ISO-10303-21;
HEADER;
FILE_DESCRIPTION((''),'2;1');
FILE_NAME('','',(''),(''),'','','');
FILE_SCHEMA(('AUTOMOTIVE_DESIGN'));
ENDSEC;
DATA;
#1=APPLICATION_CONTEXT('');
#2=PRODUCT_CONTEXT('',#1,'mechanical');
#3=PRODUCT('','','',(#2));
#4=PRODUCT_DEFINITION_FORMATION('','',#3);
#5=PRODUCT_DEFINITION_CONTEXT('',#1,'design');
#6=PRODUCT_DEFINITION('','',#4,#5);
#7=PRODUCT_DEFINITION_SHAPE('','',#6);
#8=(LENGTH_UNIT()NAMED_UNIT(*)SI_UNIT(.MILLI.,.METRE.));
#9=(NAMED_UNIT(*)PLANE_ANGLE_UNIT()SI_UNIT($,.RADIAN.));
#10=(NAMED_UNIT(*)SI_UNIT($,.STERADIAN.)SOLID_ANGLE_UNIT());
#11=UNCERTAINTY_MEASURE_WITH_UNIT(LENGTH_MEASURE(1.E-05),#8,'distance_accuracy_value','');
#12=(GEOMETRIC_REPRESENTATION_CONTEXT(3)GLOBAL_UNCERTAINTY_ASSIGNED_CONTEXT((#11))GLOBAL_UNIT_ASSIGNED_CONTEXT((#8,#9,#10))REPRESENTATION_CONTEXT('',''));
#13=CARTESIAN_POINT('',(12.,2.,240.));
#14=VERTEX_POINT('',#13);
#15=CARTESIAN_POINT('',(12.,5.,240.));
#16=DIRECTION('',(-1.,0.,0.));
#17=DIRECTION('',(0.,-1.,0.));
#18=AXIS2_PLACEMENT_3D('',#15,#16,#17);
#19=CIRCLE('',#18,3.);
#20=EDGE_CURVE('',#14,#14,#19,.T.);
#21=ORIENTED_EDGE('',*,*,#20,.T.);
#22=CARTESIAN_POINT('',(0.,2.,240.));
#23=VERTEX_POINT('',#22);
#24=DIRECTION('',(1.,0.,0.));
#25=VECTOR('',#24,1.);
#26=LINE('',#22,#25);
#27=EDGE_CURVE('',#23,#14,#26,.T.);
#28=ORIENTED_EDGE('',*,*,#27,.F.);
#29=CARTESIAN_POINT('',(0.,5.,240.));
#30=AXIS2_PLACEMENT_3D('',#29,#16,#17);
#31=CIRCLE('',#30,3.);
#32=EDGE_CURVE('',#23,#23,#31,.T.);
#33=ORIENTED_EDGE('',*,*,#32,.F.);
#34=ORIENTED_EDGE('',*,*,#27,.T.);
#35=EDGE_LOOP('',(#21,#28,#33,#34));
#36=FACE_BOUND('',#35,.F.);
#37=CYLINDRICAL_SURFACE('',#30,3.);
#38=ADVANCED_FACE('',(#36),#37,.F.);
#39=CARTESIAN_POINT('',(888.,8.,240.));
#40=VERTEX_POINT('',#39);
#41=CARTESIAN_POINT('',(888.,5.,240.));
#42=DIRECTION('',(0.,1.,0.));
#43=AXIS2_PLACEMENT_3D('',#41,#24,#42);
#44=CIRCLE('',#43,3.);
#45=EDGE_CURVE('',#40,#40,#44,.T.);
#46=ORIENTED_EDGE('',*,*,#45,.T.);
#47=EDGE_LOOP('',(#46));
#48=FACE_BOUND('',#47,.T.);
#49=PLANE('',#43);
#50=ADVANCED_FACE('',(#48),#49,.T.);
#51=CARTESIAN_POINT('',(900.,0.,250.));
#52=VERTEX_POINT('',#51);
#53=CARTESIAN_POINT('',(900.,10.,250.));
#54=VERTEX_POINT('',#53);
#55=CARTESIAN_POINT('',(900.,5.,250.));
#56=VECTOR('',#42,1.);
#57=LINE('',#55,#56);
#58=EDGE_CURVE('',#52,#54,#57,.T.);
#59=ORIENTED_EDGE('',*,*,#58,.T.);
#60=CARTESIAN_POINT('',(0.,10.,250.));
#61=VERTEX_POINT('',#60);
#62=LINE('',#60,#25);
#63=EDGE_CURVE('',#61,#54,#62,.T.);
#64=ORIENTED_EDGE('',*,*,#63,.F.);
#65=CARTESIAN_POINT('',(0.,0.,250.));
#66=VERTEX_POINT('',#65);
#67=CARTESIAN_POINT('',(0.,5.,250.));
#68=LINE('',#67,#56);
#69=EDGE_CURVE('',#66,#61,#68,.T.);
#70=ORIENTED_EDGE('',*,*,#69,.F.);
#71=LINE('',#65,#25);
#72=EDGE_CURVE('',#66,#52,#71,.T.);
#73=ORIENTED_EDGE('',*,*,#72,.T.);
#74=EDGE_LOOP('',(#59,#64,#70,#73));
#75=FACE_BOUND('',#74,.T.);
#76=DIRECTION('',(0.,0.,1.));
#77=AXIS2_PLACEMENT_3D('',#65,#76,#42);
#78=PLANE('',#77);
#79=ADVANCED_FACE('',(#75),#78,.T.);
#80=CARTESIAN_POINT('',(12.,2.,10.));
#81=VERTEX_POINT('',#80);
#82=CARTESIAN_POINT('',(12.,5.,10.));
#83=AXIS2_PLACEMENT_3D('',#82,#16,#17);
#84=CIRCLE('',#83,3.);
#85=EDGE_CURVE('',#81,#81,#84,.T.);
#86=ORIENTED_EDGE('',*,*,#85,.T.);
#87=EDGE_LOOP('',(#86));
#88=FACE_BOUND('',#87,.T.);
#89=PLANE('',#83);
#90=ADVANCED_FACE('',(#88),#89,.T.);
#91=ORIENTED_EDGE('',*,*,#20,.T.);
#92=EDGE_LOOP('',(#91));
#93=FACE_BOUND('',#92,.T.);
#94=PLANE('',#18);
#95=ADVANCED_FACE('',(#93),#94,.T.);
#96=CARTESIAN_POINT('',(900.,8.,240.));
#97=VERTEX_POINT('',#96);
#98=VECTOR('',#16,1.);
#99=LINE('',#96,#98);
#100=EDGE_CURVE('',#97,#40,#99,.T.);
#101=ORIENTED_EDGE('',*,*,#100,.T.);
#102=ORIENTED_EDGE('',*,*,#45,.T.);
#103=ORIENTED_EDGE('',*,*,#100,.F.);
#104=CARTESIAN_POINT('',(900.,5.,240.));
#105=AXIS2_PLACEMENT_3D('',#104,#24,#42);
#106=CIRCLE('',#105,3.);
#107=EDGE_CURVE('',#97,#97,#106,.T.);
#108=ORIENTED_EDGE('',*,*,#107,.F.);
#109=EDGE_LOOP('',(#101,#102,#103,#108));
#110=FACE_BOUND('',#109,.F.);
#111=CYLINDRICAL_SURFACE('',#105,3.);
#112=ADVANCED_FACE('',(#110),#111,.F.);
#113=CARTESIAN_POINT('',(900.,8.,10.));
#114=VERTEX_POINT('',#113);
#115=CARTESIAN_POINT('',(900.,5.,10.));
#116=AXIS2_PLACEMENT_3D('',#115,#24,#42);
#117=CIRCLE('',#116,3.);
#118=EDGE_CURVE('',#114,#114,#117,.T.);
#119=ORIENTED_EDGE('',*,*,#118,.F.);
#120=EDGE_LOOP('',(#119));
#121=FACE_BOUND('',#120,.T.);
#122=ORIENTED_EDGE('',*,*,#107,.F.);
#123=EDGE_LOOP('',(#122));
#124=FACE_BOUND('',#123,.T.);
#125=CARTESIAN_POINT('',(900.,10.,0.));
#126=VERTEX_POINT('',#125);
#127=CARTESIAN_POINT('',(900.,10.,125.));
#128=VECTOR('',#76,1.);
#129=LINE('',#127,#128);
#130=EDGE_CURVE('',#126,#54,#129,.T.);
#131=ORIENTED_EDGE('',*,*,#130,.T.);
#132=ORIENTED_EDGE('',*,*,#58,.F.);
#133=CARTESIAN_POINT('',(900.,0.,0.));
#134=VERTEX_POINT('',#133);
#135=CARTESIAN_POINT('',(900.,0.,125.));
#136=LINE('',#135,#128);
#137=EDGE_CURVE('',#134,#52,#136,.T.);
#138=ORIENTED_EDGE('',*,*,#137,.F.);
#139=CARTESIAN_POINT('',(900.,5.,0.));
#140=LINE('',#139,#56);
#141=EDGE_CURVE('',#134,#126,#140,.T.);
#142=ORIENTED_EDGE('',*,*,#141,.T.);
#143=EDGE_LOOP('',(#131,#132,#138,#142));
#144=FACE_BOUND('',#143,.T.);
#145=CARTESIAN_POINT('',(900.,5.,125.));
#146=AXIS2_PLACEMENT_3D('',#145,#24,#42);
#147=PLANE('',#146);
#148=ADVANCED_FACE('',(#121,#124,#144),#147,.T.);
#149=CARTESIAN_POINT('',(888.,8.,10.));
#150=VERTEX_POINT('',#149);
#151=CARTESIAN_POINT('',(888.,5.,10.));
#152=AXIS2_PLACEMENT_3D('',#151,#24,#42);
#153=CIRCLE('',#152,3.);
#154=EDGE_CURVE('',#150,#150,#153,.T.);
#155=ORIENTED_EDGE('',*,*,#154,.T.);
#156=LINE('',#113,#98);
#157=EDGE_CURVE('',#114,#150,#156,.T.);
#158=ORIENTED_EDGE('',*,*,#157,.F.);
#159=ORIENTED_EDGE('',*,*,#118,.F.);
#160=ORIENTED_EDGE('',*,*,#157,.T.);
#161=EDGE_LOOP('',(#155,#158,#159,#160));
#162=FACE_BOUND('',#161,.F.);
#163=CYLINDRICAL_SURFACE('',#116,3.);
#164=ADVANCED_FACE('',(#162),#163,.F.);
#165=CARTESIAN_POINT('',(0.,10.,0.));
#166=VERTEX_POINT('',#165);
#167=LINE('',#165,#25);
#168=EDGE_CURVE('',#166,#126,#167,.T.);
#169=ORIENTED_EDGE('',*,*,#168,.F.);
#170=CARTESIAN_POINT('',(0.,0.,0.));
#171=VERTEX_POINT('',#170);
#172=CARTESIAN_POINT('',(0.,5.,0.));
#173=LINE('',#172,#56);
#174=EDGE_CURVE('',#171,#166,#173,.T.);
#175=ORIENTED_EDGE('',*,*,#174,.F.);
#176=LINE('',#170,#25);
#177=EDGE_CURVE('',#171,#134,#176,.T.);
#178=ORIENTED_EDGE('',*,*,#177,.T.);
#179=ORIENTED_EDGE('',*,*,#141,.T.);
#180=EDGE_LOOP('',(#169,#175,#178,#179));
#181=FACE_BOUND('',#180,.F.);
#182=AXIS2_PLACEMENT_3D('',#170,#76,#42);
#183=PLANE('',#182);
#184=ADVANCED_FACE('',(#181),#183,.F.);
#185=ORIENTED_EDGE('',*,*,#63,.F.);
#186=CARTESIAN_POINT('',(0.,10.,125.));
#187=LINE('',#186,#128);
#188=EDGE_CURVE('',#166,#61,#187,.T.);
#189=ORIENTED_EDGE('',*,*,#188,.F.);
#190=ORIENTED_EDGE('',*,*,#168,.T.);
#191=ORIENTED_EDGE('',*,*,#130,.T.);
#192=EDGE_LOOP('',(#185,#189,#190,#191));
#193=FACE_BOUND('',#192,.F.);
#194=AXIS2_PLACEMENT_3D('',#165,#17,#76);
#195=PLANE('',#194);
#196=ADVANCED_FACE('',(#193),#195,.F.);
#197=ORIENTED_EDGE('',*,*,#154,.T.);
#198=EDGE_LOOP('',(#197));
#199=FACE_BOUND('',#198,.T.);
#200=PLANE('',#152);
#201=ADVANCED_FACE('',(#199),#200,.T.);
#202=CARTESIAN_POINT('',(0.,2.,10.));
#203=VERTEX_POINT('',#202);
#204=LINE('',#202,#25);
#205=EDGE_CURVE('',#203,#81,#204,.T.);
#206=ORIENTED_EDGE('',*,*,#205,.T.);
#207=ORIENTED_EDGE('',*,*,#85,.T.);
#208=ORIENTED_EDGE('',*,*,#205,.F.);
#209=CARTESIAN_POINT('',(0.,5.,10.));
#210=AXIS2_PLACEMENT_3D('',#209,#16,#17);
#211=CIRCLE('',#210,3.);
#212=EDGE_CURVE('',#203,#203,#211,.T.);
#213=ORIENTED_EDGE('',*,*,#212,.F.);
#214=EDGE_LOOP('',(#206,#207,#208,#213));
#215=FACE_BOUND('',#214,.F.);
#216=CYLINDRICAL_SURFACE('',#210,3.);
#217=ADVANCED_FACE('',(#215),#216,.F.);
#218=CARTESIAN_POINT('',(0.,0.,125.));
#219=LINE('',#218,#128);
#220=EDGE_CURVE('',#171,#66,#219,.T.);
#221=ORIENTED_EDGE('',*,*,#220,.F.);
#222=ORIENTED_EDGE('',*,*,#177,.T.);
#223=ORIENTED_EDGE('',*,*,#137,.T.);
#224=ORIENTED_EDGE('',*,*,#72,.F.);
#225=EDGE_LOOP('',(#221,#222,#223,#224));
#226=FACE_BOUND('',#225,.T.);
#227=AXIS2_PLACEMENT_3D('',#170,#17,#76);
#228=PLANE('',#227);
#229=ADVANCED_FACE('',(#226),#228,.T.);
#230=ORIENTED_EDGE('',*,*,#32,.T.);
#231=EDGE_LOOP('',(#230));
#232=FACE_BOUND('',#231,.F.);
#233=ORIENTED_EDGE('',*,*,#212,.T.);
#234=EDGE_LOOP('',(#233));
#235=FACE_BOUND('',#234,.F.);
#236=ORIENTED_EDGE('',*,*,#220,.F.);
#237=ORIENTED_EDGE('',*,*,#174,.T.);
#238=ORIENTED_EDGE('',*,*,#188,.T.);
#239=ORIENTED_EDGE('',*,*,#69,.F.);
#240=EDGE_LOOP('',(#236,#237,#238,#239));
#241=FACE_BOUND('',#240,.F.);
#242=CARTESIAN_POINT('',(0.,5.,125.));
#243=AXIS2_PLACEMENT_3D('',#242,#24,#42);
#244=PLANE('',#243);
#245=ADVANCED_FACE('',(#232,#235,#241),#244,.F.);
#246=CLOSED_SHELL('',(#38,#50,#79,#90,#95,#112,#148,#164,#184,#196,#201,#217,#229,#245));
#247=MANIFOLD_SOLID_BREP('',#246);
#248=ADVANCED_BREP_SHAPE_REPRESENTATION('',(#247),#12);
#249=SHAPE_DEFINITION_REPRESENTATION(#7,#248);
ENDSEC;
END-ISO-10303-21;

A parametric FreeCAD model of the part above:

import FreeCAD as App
import Part
import Sketcher
from FreeCAD import Vector


def add_polygon(sketch, points):
    """Adds a closed chain of lines whose ends are joined by coincident constraints."""
    first, n = sketch.GeometryCount, len(points)
    for a, b in zip(points, points[1:] + points[:1]):
        sketch.addGeometry(Part.LineSegment(App.Vector(*a, 0), App.Vector(*b, 0)), False)
    for i in range(n):
        sketch.addConstraint(Sketcher.Constraint("Coincident", first + i, 2, first + (i + 1) % n, 1))

doc = App.newDocument("Part")
body = doc.addObject("PartDesign::Body", "Body")

sketch1 = body.newObject("Sketcher::SketchObject", "Sketch")
sketch1.AttachmentSupport = (doc.getObject("YZ_Plane"), [""])
sketch1.MapMode = "FlatFace"
add_polygon(sketch1, [(0, 250), (0, 0), (10, 0), (10, 250)])
sketch1.addConstraint([
    Sketcher.Constraint("Vertical", 0),
    Sketcher.Constraint("Horizontal", 1),
    Sketcher.Constraint("Vertical", 2),
    Sketcher.Constraint("Horizontal", 3),
    Sketcher.Constraint("Coincident", 0, 2, -1, 1),
    Sketcher.Constraint("DistanceX", 1, 1, 1, 2, 10.0),
    Sketcher.Constraint("DistanceY", 0, 2, 0, 1, 250.0),
])
pad1 = body.newObject("PartDesign::Pad", "Pad")
pad1.Profile = sketch1
pad1.Length = 900

sketch2 = body.newObject("Sketcher::SketchObject", "Sketch001")
sketch2.AttachmentSupport = (doc.getObject("YZ_Plane"), [""])
sketch2.MapMode = "FlatFace"
sketch2.AttachmentOffset = App.Placement(Vector(0, 0, 900), App.Rotation())
sketch2.addGeometry([
    Part.Circle(Vector(5, 240, 0), Vector(0, 0, 1), 3),
    Part.Circle(Vector(5, 10, 0), Vector(0, 0, 1), 3),
], False)
sketch2.addConstraint([
    Sketcher.Constraint("Equal", 0, 1),
    Sketcher.Constraint("Vertical", 0, 3, 1, 3),
    Sketcher.Constraint("Diameter", 0, 6.0),
    Sketcher.Constraint("DistanceX", -1, 1, 0, 3, 5.0),
    Sketcher.Constraint("DistanceY", -1, 1, 0, 3, 240.0),
    Sketcher.Constraint("DistanceY", -1, 1, 1, 3, 10.0),
])
pocket1 = body.newObject("PartDesign::Pocket", "Pocket")
pocket1.Profile = sketch2
pocket1.Length = 12

sketch3 = body.newObject("Sketcher::SketchObject", "Sketch002")
sketch3.AttachmentSupport = (doc.getObject("YZ_Plane"), [""])
sketch3.MapMode = "FlatFace"
sketch3.addGeometry([
    Part.Circle(Vector(5, 240, 0), Vector(0, 0, 1), 3),
    Part.Circle(Vector(5, 10, 0), Vector(0, 0, 1), 3),
], False)
sketch3.addConstraint([
    Sketcher.Constraint("Equal", 0, 1),
    Sketcher.Constraint("Vertical", 0, 3, 1, 3),
    Sketcher.Constraint("Diameter", 0, 6.0),
    Sketcher.Constraint("DistanceX", -1, 1, 0, 3, 5.0),
    Sketcher.Constraint("DistanceY", -1, 1, 0, 3, 240.0),
    Sketcher.Constraint("DistanceY", -1, 1, 1, 3, 10.0),
])
pocket2 = body.newObject("PartDesign::Pocket", "Pocket001")
pocket2.Profile = sketch3
pocket2.Length = 12
pocket2.Reversed = True

doc.recompute()
